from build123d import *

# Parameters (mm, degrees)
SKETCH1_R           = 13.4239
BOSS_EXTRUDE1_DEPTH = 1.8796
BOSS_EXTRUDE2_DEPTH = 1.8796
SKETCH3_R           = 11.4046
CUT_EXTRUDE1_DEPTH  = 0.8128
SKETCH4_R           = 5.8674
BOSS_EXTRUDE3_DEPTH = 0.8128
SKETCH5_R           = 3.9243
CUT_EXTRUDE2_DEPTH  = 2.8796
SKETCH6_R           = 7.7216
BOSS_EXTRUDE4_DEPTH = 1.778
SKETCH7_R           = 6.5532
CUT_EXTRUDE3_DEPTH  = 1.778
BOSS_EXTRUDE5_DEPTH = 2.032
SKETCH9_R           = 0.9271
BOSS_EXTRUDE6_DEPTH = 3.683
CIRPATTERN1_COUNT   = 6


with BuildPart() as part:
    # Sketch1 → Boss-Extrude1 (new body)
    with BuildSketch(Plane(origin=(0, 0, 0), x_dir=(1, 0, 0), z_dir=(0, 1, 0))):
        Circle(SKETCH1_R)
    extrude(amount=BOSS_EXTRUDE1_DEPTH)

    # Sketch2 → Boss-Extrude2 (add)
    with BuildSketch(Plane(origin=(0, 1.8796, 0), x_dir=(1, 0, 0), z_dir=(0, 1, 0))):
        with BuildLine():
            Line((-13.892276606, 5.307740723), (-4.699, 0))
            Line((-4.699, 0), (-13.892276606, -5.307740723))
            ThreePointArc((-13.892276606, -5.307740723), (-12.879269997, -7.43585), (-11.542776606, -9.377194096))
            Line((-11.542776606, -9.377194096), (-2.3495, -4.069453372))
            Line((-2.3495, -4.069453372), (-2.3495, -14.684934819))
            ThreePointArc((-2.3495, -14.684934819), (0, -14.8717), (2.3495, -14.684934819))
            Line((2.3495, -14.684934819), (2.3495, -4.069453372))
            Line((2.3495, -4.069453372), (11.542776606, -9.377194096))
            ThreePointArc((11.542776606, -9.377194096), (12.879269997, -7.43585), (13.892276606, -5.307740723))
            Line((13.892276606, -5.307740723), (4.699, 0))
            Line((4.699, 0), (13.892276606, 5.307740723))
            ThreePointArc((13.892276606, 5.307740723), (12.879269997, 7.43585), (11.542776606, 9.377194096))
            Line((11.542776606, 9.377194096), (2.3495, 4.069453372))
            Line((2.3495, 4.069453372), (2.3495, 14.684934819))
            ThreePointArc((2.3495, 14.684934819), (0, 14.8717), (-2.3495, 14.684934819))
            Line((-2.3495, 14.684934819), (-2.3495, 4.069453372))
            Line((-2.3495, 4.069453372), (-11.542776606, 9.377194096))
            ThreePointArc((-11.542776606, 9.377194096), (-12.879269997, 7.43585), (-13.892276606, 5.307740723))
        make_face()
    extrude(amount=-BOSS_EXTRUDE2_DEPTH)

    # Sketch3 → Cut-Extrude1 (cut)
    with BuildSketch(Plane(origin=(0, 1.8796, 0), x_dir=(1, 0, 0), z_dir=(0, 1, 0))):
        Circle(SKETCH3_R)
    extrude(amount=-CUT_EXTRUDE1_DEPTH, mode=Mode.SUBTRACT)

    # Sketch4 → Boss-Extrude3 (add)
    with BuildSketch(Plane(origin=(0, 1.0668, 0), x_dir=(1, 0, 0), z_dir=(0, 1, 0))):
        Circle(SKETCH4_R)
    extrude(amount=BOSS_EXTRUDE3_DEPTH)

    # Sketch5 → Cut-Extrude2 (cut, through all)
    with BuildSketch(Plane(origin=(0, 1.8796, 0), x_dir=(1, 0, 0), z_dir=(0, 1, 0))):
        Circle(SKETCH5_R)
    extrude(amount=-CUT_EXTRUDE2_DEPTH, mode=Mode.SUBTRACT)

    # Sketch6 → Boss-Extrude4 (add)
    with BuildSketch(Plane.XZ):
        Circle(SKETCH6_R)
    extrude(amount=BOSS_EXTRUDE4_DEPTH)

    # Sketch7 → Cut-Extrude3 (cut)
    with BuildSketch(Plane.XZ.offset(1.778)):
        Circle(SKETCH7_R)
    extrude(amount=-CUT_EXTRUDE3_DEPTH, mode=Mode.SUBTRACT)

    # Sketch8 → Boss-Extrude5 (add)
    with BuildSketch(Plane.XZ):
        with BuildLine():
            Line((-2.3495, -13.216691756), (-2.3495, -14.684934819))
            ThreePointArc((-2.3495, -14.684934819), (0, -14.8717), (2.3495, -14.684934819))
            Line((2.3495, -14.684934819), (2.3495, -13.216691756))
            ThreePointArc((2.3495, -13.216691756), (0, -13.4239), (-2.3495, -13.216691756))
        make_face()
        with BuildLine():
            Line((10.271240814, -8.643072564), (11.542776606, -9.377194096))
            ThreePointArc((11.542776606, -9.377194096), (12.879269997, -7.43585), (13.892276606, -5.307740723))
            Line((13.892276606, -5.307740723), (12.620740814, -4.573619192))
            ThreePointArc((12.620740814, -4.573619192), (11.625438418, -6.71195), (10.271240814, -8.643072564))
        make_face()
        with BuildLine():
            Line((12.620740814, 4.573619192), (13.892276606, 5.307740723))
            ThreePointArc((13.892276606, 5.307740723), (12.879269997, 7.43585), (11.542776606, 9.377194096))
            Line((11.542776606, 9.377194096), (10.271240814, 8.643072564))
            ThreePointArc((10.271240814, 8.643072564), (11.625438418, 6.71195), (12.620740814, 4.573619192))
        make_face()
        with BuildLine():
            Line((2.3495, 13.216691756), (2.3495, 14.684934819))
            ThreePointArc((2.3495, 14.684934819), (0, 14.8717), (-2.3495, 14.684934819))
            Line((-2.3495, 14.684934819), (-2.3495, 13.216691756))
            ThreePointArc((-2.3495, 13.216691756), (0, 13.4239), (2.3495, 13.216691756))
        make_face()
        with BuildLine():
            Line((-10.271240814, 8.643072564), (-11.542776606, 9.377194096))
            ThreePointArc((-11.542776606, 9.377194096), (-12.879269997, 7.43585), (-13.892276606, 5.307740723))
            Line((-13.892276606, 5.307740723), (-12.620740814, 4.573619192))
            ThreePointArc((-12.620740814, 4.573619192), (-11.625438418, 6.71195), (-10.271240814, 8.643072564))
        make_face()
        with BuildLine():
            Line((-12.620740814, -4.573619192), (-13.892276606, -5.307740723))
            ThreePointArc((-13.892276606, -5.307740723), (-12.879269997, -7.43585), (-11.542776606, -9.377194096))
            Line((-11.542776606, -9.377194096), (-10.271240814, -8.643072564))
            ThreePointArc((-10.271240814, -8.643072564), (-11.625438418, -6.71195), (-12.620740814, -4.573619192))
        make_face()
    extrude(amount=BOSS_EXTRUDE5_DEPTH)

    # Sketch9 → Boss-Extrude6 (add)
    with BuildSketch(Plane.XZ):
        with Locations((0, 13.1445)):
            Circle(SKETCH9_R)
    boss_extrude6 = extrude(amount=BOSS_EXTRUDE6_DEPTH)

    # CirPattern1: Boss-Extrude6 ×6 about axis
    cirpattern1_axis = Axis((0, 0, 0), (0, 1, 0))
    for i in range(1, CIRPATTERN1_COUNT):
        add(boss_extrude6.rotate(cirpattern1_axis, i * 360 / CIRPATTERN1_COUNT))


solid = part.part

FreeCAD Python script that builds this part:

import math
import FreeCAD as App
import Part
import Sketcher
from FreeCAD import Vector
Q = App.Units.Quantity

doc = App.newDocument("Part")
body = doc.addObject("PartDesign::Body", "Body")

# Sketch on XZ plane
sketch1 = body.newObject("Sketcher::SketchObject", "Sketch")
sketch1.AttachmentSupport = (doc.getObject("XZ_Plane"), [""])
sketch1.MapMode = "FlatFace"
sketch1.addGeometry(Part.Circle(Vector(0, 0, 0), Vector(0, 0, 1), 13), False)
sketch1.addConstraint([
    Sketcher.Constraint("Coincident", 0, 3, -1, 1),
    Sketcher.Constraint("Diameter", 0, Q("1.057 in")),
])
pad1 = body.newObject("PartDesign::Pad", "Pad")
pad1.Profile = sketch1
pad1.Length = Q("0.074 in")
pad1.Reversed = True

# Sketch on XZ plane
sketch2 = body.newObject("Sketcher::SketchObject", "Sketch001")
sketch2.AttachmentSupport = (doc.getObject("XZ_Plane"), [""])
sketch2.MapMode = "FlatFace"
sketch2.AttachmentOffset = App.Placement(Vector(0, 0, -0.074 * 25.4), App.Rotation())
sketch2.addGeometry([
    Part.LineSegment(Vector(-13.9, -5.3, 0), Vector(-4.7, 0, 0)),  # 0
    Part.LineSegment(Vector(-4.7, 0, 0), Vector(-13.9, 5.3, 0)),  # 1
    Part.ArcOfCircle(Part.Circle(Vector(0, 0, 0), Vector(0, 0, 1), 14.9), math.radians(140.91), math.radians(159.09)),  # 2
    Part.LineSegment(Vector(-11.5, 9.4, 0), Vector(-2.3, 4.1, 0)),  # 3
    Part.LineSegment(Vector(-2.3, 4.1, 0), Vector(-2.3, 14.7, 0)),  # 4
    Part.ArcOfCircle(Part.Circle(Vector(0, 0, 0), Vector(0, 0, 1), 14.9), math.radians(80.91), math.radians(99.09)),  # 5
    Part.LineSegment(Vector(2.3, 14.7, 0), Vector(2.3, 4.1, 0)),  # 6
    Part.LineSegment(Vector(2.3, 4.1, 0), Vector(11.5, 9.4, 0)),  # 7
    Part.ArcOfCircle(Part.Circle(Vector(0, 0, 0), Vector(0, 0, 1), 14.9), math.radians(20.91), math.radians(39.09)),  # 8
    Part.LineSegment(Vector(13.9, 5.3, 0), Vector(4.7, 0, 0)),  # 9
    Part.LineSegment(Vector(4.7, 0, 0), Vector(13.9, -5.3, 0)),  # 10
    Part.ArcOfCircle(Part.Circle(Vector(0, 0, 0), Vector(0, 0, 1), 14.9), math.radians(-39.09), math.radians(-20.91)),  # 11
    Part.LineSegment(Vector(11.5, -9.4, 0), Vector(2.3, -4.1, 0)),  # 12
    Part.LineSegment(Vector(2.3, -4.1, 0), Vector(2.3, -14.7, 0)),  # 13
    Part.ArcOfCircle(Part.Circle(Vector(0, 0, 0), Vector(0, 0, 1), 14.9), math.radians(-99.09), math.radians(-80.91)),  # 14
    Part.LineSegment(Vector(-2.3, -14.7, 0), Vector(-2.3, -4.1, 0)),  # 15
    Part.LineSegment(Vector(-2.3, -4.1, 0), Vector(-11.5, -9.4, 0)),  # 16
    Part.ArcOfCircle(Part.Circle(Vector(0, 0, 0), Vector(0, 0, 1), 14.9), math.radians(-159.09), math.radians(-140.91)),  # 17
], False)
sketch2.addConstraint([
    Sketcher.Constraint("Coincident", 0, 2, 1, 1),
    Sketcher.Constraint("Coincident", 1, 2, 2, 2),
    Sketcher.Constraint("Coincident", 2, 1, 3, 1),
    Sketcher.Constraint("Coincident", 3, 2, 4, 1),
    Sketcher.Constraint("Coincident", 4, 2, 5, 2),
    Sketcher.Constraint("Coincident", 5, 1, 6, 1),
    Sketcher.Constraint("Coincident", 6, 2, 7, 1),
    Sketcher.Constraint("Coincident", 7, 2, 8, 2),
    Sketcher.Constraint("Coincident", 8, 1, 9, 1),
    Sketcher.Constraint("Coincident", 9, 2, 10, 1),
    Sketcher.Constraint("Coincident", 10, 2, 11, 2),
    Sketcher.Constraint("Coincident", 11, 1, 12, 1),
    Sketcher.Constraint("Coincident", 12, 2, 13, 1),
    Sketcher.Constraint("Coincident", 13, 2, 14, 2),
    Sketcher.Constraint("Coincident", 14, 1, 15, 1),
    Sketcher.Constraint("Coincident", 15, 2, 16, 1),
    Sketcher.Constraint("Coincident", 16, 2, 17, 2),
    Sketcher.Constraint("Coincident", 17, 1, 0, 1),
    Sketcher.Constraint("Vertical", 4),
    Sketcher.Constraint("Vertical", 6),
    Sketcher.Constraint("Vertical", 13),
    Sketcher.Constraint("Vertical", 15),
    Sketcher.Constraint("Coincident", 2, 3, -1, 1),
    Sketcher.Constraint("Coincident", 5, 3, -1, 1),
    Sketcher.Constraint("Coincident", 8, 3, -1, 1),
    Sketcher.Constraint("Coincident", 11, 3, -1, 1),
    Sketcher.Constraint("Coincident", 14, 3, -1, 1),
    Sketcher.Constraint("Coincident", 17, 3, -1, 1),
    Sketcher.Constraint("Equal", 2, 5),
    Sketcher.Constraint("Equal", 5, 8),
    Sketcher.Constraint("Equal", 8, 11),
    Sketcher.Constraint("Equal", 11, 14),
    Sketcher.Constraint("Equal", 14, 17),
    Sketcher.Constraint("Symmetric", 0, 2, 9, 2, -1, 1),
    Sketcher.Constraint("Symmetric", 3, 2, 12, 2, -1, 1),
    Sketcher.Constraint("Symmetric", 6, 2, 15, 2, -1, 1),
    Sketcher.Constraint("Symmetric", 3, 2, 6, 2, -2),
    Sketcher.Constraint("PointOnObject", 0, 2, -1),
    Sketcher.Constraint("Parallel", 1, 3),
    Sketcher.Constraint("Parallel", 0, 7),
    Sketcher.Constraint("Parallel", 7, 9),
    Sketcher.Constraint("Parallel", 3, 10),
    Sketcher.Constraint("Parallel", 10, 12),
    Sketcher.Constraint("Parallel", 9, 16),
    Sketcher.Constraint("Horizontal", 2, 1, 7, 2),
    Sketcher.Constraint("Equal", 1, 3),
    Sketcher.Constraint("Angle", 0, Q("30 deg")),
    Sketcher.Constraint("Radius", 2, Q("0.5855 in")),
    Sketcher.Constraint("DistanceX", 0, 2, -1, 1, Q("0.185 in")),
    Sketcher.Constraint("DistanceX", 4, 2, 5, 1, Q("0.185 in")),
])
pad2 = body.newObject("PartDesign::Pad", "Pad001")
pad2.Profile = sketch2
pad2.Length = Q("0.074 in")

# Sketch on XZ plane
sketch3 = body.newObject("Sketcher::SketchObject", "Sketch002")
sketch3.AttachmentSupport = (doc.getObject("XZ_Plane"), [""])
sketch3.MapMode = "FlatFace"
sketch3.AttachmentOffset = App.Placement(Vector(0, 0, -0.074 * 25.4), App.Rotation())
sketch3.addGeometry(Part.Circle(Vector(0, 0, 0), Vector(0, 0, 1), 11), False)
sketch3.addConstraint([
    Sketcher.Constraint("Coincident", 0, 3, -1, 1),
    Sketcher.Constraint("Diameter", 0, Q("0.898 in")),
])
pocket1 = body.newObject("PartDesign::Pocket", "Pocket")
pocket1.Profile = sketch3
pocket1.Length = Q("0.032 in")
pocket1.Reversed = True

# Sketch on XZ plane
sketch4 = body.newObject("Sketcher::SketchObject", "Sketch003")
sketch4.AttachmentSupport = (doc.getObject("XZ_Plane"), [""])
sketch4.MapMode = "FlatFace"
sketch4.AttachmentOffset = App.Placement(Vector(0, 0, -0.042 * 25.4), App.Rotation())
sketch4.addGeometry(Part.Circle(Vector(0, 0, 0), Vector(0, 0, 1), 6), False)
sketch4.addConstraint([
    Sketcher.Constraint("Coincident", 0, 3, -1, 1),
    Sketcher.Constraint("Diameter", 0, Q("0.462 in")),
])
pad3 = body.newObject("PartDesign::Pad", "Pad002")
pad3.Profile = sketch4
pad3.Length = Q("0.032 in")
pad3.Reversed = True

# Sketch on XZ plane
sketch5 = body.newObject("Sketcher::SketchObject", "Sketch004")
sketch5.AttachmentSupport = (doc.getObject("XZ_Plane"), [""])
sketch5.MapMode = "FlatFace"
sketch5.AttachmentOffset = App.Placement(Vector(0, 0, -0.074 * 25.4), App.Rotation())
sketch5.addGeometry(Part.Circle(Vector(0, 0, 0), Vector(0, 0, 1), 3.9), False)
sketch5.addConstraint([
    Sketcher.Constraint("Coincident", 0, 3, -1, 1),
    Sketcher.Constraint("Diameter", 0, Q("0.309 in")),
])
pocket2 = body.newObject("PartDesign::Pocket", "Pocket001")
pocket2.Profile = sketch5
pocket2.Type = "ThroughAll"
pocket2.Reversed = True

# Sketch on XZ plane
sketch6 = body.newObject("Sketcher::SketchObject", "Sketch005")
sketch6.AttachmentSupport = (doc.getObject("XZ_Plane"), [""])
sketch6.MapMode = "FlatFace"
sketch6.addGeometry(Part.Circle(Vector(0, 0, 0), Vector(0, 0, 1), 8), False)
sketch6.addConstraint([
    Sketcher.Constraint("Coincident", 0, 3, -1, 1),
    Sketcher.Constraint("Diameter", 0, Q("0.608 in")),
])
pad4 = body.newObject("PartDesign::Pad", "Pad003")
pad4.Profile = sketch6
pad4.Length = Q("0.07 in")

# Sketch on XZ plane
sketch7 = body.newObject("Sketcher::SketchObject", "Sketch006")
sketch7.AttachmentSupport = (doc.getObject("XZ_Plane"), [""])
sketch7.MapMode = "FlatFace"
sketch7.AttachmentOffset = App.Placement(Vector(0, 0, 0.07 * 25.4), App.Rotation())
sketch7.addGeometry(Part.Circle(Vector(0, 0, 0), Vector(0, 0, 1), 7), False)
sketch7.addConstraint([
    Sketcher.Constraint("Coincident", 0, 3, -1, 1),
    Sketcher.Constraint("Diameter", 0, Q("0.516 in")),
])
pocket3 = body.newObject("PartDesign::Pocket", "Pocket002")
pocket3.Profile = sketch7
pocket3.Length = Q("0.07 in")

# Sketch on XZ plane
sketch8 = body.newObject("Sketcher::SketchObject", "Sketch007")
sketch8.AttachmentSupport = (doc.getObject("XZ_Plane"), [""])
sketch8.MapMode = "FlatFace"
sketch8.addGeometry([
    Part.LineSegment(Vector(-2.3, -13.2, 0), Vector(-2.3, -14.7, 0)),  # 0
    Part.ArcOfCircle(Part.Circle(Vector(0, 0, 0), Vector(0, 0, 1), 14.9), math.radians(-99.09), math.radians(-80.91)),  # 1
    Part.LineSegment(Vector(2.3, -14.7, 0), Vector(2.3, -13.2, 0)),  # 2
    Part.ArcOfCircle(Part.Circle(Vector(0, 0, 0), Vector(0, 0, 1), 13.4), math.radians(-100), math.radians(-80)),  # 3
    Part.LineSegment(Vector(10.3, -8.6, 0), Vector(11.5, -9.4, 0)),  # 4
    Part.ArcOfCircle(Part.Circle(Vector(0, 0, 0), Vector(0, 0, 1), 14.9), math.radians(-39.09), math.radians(-20.91)),  # 5
    Part.LineSegment(Vector(13.9, -5.3, 0), Vector(12.6, -4.6, 0)),  # 6
    Part.ArcOfCircle(Part.Circle(Vector(0, 0, 0), Vector(0, 0, 1), 13.4), math.radians(-40), math.radians(-20)),  # 7
    Part.LineSegment(Vector(12.6, 4.6, 0), Vector(13.9, 5.3, 0)),  # 8
    Part.ArcOfCircle(Part.Circle(Vector(0, 0, 0), Vector(0, 0, 1), 14.9), math.radians(20.91), math.radians(39.09)),  # 9
    Part.LineSegment(Vector(11.5, 9.4, 0), Vector(10.3, 8.6, 0)),  # 10
    Part.ArcOfCircle(Part.Circle(Vector(0, 0, 0), Vector(0, 0, 1), 13.4), math.radians(20), math.radians(40)),  # 11
    Part.LineSegment(Vector(2.3, 13.2, 0), Vector(2.3, 14.7, 0)),  # 12
    Part.ArcOfCircle(Part.Circle(Vector(0, 0, 0), Vector(0, 0, 1), 14.9), math.radians(80.91), math.radians(99.09)),  # 13
    Part.LineSegment(Vector(-2.3, 14.7, 0), Vector(-2.3, 13.2, 0)),  # 14
    Part.ArcOfCircle(Part.Circle(Vector(0, 0, 0), Vector(0, 0, 1), 13.4), math.radians(80), math.radians(100)),  # 15
    Part.LineSegment(Vector(-10.3, 8.6, 0), Vector(-11.5, 9.4, 0)),  # 16
    Part.ArcOfCircle(Part.Circle(Vector(0, 0, 0), Vector(0, 0, 1), 14.9), math.radians(140.91), math.radians(159.09)),  # 17
    Part.LineSegment(Vector(-13.9, 5.3, 0), Vector(-12.6, 4.6, 0)),  # 18
    Part.ArcOfCircle(Part.Circle(Vector(0, 0, 0), Vector(0, 0, 1), 13.4), math.radians(140), math.radians(160)),  # 19
    Part.LineSegment(Vector(-12.6, -4.6, 0), Vector(-13.9, -5.3, 0)),  # 20
    Part.ArcOfCircle(Part.Circle(Vector(0, 0, 0), Vector(0, 0, 1), 14.9), math.radians(-159.09), math.radians(-140.91)),  # 21
    Part.LineSegment(Vector(-11.5, -9.4, 0), Vector(-10.3, -8.6, 0)),  # 22
    Part.ArcOfCircle(Part.Circle(Vector(0, 0, 0), Vector(0, 0, 1), 13.4), math.radians(-160), math.radians(-140)),  # 23
], False)
sketch8.addConstraint([
    Sketcher.Constraint("Coincident", 0, 2, 1, 1),
    Sketcher.Constraint("Coincident", 1, 2, 2, 1),
    Sketcher.Constraint("Coincident", 2, 2, 3, 2),
    Sketcher.Constraint("Coincident", 3, 1, 0, 1),
    Sketcher.Constraint("Coincident", 4, 2, 5, 1),
    Sketcher.Constraint("Coincident", 5, 2, 6, 1),
    Sketcher.Constraint("Coincident", 6, 2, 7, 2),
    Sketcher.Constraint("Coincident", 7, 1, 4, 1),
    Sketcher.Constraint("Coincident", 8, 2, 9, 1),
    Sketcher.Constraint("Coincident", 9, 2, 10, 1),
    Sketcher.Constraint("Coincident", 10, 2, 11, 2),
    Sketcher.Constraint("Coincident", 11, 1, 8, 1),
    Sketcher.Constraint("Coincident", 12, 2, 13, 1),
    Sketcher.Constraint("Coincident", 13, 2, 14, 1),
    Sketcher.Constraint("Coincident", 14, 2, 15, 2),
    Sketcher.Constraint("Coincident", 15, 1, 12, 1),
    Sketcher.Constraint("Coincident", 16, 2, 17, 1),
    Sketcher.Constraint("Coincident", 17, 2, 18, 1),
    Sketcher.Constraint("Coincident", 18, 2, 19, 2),
    Sketcher.Constraint("Coincident", 19, 1, 16, 1),
    Sketcher.Constraint("Coincident", 20, 2, 21, 1),
    Sketcher.Constraint("Coincident", 21, 2, 22, 1),
    Sketcher.Constraint("Coincident", 22, 2, 23, 2),
    Sketcher.Constraint("Coincident", 23, 1, 20, 1),
    Sketcher.Constraint("Vertical", 0),
    Sketcher.Constraint("Vertical", 2),
    Sketcher.Constraint("Vertical", 12),
    Sketcher.Constraint("Vertical", 14),
    Sketcher.Constraint("Coincident", 1, 3, -1, 1),
    Sketcher.Constraint("Coincident", 3, 3, -1, 1),
    Sketcher.Constraint("Coincident", 5, 3, -1, 1),
    Sketcher.Constraint("Coincident", 7, 3, -1, 1),
    Sketcher.Constraint("Coincident", 9, 3, -1, 1),
    Sketcher.Constraint("Coincident", 11, 3, -1, 1),
    Sketcher.Constraint("Coincident", 13, 3, -1, 1),
    Sketcher.Constraint("Coincident", 15, 3, -1, 1),
    Sketcher.Constraint("Coincident", 17, 3, -1, 1),
    Sketcher.Constraint("Coincident", 19, 3, -1, 1),
    Sketcher.Constraint("Coincident", 21, 3, -1, 1),
    Sketcher.Constraint("Coincident", 23, 3, -1, 1),
    Sketcher.Constraint("Equal", 1, 5),
    Sketcher.Constraint("Equal", 3, 7),
    Sketcher.Constraint("Equal", 5, 9),
    Sketcher.Constraint("Equal", 7, 11),
    Sketcher.Constraint("Equal", 9, 13),
    Sketcher.Constraint("Equal", 11, 15),
    Sketcher.Constraint("Equal", 13, 17),
    Sketcher.Constraint("Equal", 15, 19),
    Sketcher.Constraint("Equal", 17, 21),
    Sketcher.Constraint("Equal", 19, 23),
    Sketcher.Constraint("Parallel", 4, 6),
    Sketcher.Constraint("Parallel", 8, 10),
    Sketcher.Constraint("Parallel", 6, 16),
    Sketcher.Constraint("Parallel", 16, 18),
    Sketcher.Constraint("Parallel", 10, 20),
    Sketcher.Constraint("Parallel", 20, 22),
    Sketcher.Constraint("Horizontal", 0, 2, 1, 2),
    Sketcher.Constraint("Horizontal", 12, 2, 13, 2),
    Sketcher.Constraint("Horizontal", 9, 2, 16, 2),
    Sketcher.Constraint("Horizontal", 8, 2, 17, 2),
    Sketcher.Constraint("Horizontal", 11, 1, 18, 2),
    Sketcher.Constraint("Horizontal", 5, 2, 20, 2),
    Sketcher.Constraint("Horizontal", 4, 2, 21, 2),
    Sketcher.Constraint("Vertical", 5, 2, 8, 2),
    Sketcher.Constraint("Vertical", 4, 2, 9, 2),
    Sketcher.Constraint("Vertical", 2, 2, 12, 2),
    Sketcher.Constraint("Equal", 4, 6),
    Sketcher.Constraint("Angle", 4, Q("-30 deg")),
    Sketcher.Constraint("Radius", 1, Q("0.5855 in")),
    Sketcher.Constraint("Radius", 3, Q("0.5285 in")),
    Sketcher.Constraint("DistanceX", 0, 2, 1, 2, Q("0.185 in")),
    Sketcher.Constraint("DistanceX", 4, 2, 5, 2, Q("0.0925 in")),
])
pad5 = body.newObject("PartDesign::Pad", "Pad004")
pad5.Profile = sketch8
pad5.Length = Q("0.08 in")

# Sketch on XZ plane
sketch9 = body.newObject("Sketcher::SketchObject", "Sketch008")
sketch9.AttachmentSupport = (doc.getObject("XZ_Plane"), [""])
sketch9.MapMode = "FlatFace"
sketch9.addGeometry(Part.Circle(Vector(0, 13.1, 0), Vector(0, 0, 1), 0.9), False)
sketch9.addConstraint([
    Sketcher.Constraint("PointOnObject", 0, 3, -2),
    Sketcher.Constraint("Diameter", 0, Q("0.073 in")),
    Sketcher.Constraint("DistanceY", -1, 1, 0, 3, Q("0.5175 in")),
])
pad6 = body.newObject("PartDesign::Pad", "Pad005")
pad6.Profile = sketch9
pad6.Length = Q("0.145 in")
doc.recompute()

polarpattern = body.newObject("PartDesign::PolarPattern", "PolarPattern")
polarpattern.Originals = [pad6]
polarpattern.Axis = (doc.getObject("Y_Axis"), [""])
polarpattern.Angle = 360
polarpattern.Occurrences = 6
body.Tip = polarpattern

doc.recompute()
